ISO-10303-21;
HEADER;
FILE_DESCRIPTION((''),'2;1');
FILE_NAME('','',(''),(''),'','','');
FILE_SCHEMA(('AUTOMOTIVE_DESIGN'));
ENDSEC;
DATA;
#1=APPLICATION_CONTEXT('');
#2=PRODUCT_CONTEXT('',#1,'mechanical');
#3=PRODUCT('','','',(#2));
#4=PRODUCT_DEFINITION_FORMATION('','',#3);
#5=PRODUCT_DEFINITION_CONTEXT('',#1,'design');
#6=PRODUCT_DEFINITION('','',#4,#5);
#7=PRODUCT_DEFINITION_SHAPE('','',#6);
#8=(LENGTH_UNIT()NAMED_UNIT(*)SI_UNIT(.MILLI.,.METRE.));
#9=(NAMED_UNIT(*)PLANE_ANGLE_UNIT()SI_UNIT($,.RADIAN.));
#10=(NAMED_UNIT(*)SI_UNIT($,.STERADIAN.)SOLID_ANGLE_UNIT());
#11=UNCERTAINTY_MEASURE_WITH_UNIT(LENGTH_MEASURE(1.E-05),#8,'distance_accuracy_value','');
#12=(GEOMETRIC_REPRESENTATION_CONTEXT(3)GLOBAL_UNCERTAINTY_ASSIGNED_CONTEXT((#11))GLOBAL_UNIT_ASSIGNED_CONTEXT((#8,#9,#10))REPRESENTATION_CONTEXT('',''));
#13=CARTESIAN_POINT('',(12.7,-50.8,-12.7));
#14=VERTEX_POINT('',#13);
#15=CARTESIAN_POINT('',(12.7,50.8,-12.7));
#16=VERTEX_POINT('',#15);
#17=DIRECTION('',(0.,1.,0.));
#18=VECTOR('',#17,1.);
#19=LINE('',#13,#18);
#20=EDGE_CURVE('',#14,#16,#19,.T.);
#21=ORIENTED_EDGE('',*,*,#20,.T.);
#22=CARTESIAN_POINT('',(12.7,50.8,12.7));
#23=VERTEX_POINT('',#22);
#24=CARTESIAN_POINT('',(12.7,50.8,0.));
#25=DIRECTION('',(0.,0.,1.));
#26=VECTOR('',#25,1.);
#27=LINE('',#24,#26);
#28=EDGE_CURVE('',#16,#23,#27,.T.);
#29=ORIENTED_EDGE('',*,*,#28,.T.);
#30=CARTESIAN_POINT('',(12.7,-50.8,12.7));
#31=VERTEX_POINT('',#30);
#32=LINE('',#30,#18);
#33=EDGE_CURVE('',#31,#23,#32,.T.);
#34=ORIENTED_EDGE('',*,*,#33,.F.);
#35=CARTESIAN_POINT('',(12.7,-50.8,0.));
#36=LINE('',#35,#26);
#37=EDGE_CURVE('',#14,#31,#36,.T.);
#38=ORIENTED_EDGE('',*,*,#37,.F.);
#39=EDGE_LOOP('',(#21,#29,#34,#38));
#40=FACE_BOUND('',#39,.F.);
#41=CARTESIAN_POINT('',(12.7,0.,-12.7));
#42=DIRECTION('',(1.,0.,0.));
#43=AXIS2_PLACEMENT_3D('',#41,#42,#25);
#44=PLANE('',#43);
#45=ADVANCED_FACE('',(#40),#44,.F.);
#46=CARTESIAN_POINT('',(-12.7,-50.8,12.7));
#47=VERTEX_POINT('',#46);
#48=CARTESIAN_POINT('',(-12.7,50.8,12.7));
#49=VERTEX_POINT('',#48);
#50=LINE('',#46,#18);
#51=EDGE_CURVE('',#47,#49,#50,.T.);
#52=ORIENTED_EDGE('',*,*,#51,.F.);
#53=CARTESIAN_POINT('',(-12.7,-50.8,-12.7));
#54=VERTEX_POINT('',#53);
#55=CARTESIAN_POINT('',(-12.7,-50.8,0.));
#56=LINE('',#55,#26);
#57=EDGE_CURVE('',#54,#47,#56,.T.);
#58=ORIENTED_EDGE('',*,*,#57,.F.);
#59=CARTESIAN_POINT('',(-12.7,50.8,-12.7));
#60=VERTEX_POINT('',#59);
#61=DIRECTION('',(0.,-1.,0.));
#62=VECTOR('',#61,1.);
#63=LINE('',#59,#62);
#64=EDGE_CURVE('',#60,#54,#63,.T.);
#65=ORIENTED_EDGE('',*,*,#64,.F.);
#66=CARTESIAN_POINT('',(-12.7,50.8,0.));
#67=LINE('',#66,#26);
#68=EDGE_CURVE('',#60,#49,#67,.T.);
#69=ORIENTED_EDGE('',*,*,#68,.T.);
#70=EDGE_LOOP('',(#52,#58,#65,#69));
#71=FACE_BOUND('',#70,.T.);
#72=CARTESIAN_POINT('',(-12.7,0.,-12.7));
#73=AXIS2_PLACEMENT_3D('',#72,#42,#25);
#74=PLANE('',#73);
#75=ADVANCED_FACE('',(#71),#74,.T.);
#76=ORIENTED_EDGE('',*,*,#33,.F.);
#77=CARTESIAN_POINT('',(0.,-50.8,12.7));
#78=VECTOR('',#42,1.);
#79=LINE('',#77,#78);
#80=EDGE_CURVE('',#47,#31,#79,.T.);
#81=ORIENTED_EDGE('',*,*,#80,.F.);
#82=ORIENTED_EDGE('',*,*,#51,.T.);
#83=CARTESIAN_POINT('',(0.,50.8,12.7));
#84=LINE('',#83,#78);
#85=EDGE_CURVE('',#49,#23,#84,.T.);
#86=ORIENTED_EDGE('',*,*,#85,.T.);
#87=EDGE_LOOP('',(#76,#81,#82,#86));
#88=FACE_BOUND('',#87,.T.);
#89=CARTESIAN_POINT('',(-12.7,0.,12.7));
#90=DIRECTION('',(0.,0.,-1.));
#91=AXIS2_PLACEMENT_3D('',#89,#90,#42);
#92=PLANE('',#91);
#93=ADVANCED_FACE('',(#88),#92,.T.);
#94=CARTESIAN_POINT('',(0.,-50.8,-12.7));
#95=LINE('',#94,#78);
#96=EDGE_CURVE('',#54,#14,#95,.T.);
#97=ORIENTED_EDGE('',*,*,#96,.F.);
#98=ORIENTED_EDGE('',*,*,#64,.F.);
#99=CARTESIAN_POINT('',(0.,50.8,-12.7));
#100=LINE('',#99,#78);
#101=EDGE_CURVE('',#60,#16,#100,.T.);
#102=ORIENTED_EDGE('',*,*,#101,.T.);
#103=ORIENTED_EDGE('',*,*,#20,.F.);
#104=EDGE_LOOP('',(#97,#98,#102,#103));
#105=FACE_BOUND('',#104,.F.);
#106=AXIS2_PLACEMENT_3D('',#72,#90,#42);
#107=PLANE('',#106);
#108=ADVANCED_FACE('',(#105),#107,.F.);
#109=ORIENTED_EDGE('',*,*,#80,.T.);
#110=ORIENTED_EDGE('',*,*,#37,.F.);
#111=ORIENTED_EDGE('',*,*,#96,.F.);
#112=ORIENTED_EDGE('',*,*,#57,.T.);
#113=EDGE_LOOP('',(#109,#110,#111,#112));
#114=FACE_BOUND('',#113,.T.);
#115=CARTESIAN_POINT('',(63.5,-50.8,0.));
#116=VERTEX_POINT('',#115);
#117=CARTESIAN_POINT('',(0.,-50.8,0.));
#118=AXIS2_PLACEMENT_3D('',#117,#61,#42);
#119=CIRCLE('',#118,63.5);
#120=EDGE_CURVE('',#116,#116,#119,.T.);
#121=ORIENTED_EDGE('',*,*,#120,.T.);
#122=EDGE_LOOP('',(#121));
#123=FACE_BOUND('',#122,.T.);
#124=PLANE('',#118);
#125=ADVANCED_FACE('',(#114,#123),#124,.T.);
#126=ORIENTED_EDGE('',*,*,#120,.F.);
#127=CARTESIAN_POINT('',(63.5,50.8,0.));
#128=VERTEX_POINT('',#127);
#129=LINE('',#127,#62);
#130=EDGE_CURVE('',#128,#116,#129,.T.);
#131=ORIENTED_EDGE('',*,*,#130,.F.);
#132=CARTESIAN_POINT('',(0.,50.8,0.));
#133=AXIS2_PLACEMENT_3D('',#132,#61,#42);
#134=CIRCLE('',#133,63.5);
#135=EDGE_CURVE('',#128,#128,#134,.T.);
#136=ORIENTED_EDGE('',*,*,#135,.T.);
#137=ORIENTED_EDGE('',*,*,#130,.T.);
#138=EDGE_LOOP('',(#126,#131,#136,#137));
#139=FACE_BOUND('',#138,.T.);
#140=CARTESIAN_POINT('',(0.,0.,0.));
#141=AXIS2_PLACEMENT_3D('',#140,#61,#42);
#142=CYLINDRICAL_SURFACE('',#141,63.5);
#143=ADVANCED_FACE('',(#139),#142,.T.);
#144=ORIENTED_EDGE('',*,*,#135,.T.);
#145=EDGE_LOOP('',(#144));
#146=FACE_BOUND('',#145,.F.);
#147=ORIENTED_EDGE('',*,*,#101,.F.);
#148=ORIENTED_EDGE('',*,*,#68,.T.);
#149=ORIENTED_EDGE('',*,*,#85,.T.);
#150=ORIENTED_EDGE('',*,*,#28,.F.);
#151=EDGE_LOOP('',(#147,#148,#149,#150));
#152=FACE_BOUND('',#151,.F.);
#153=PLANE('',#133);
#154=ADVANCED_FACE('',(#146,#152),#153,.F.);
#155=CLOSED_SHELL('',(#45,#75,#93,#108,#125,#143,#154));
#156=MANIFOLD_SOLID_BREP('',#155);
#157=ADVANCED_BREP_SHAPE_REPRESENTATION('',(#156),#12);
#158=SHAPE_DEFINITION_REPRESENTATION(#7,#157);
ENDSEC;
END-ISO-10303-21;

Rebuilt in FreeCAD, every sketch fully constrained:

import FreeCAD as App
import Part
import Sketcher

V = App.Vector
Q = App.Units.Quantity


def add_polygon(sketch, points):
    """Adds a closed chain of lines whose ends are joined by coincident constraints."""
    first, n = sketch.GeometryCount, len(points)
    for a, b in zip(points, points[1:] + points[:1]):
        sketch.addGeometry(Part.LineSegment(App.Vector(*a, 0), App.Vector(*b, 0)), False)
    for i in range(n):
        sketch.addConstraint(Sketcher.Constraint("Coincident", first + i, 2, first + (i + 1) % n, 1))

doc = App.newDocument("Part")
params = doc.addObject("Spreadsheet::Sheet", "Params")
for row, (alias, value) in enumerate([
    ("sketch1_diameter", "5 in"),
    ("sketch1_width", "1 in"),
    ("pad1_length", "2 in"),
    ("sketch2_diameter", "5 in"),
    ("sketch2_width", "1 in"),
    ("pad2_length", "2 in"),
], start=1):
    params.set(f"A{row}", alias)
    params.set(f"B{row}", "=" + value)
    params.setAlias(f"B{row}", alias)

body = doc.addObject("PartDesign::Body", "Body")

sketch1 = doc.addObject("Sketcher::SketchObject", "Sketch")
body.addObject(sketch1)
sketch1.AttachmentSupport = (doc.XZ_Plane, [""])
sketch1.MapMode = "FlatFace"
sketch1.addGeometry(Part.Circle(V(0, 0, 0), V(0, 0, 1), 64), False)
add_polygon(sketch1, [(13, -13), (-13, -13), (-13, 13), (13, 13)])
sketch1.addConstraint(Sketcher.Constraint("Horizontal", 1))
sketch1.addConstraint(Sketcher.Constraint("Vertical", 2))
sketch1.addConstraint(Sketcher.Constraint("Horizontal", 3))
sketch1.addConstraint(Sketcher.Constraint("Vertical", 4))
sketch1.addConstraint(Sketcher.Constraint("Coincident", 0, 3, -1, 1))
sketch1.addConstraint(Sketcher.Constraint("Symmetric", 1, 2, 3, 2, -1, 1))
sketch1.addConstraint(Sketcher.Constraint("Equal", 3, 2))
sketch1.addConstraint(Sketcher.Constraint("Diameter", 0, Q("5 in")))
sketch1.addConstraint(Sketcher.Constraint("DistanceX", 1, 2, 1, 1, Q("1 in")))
sketch1.setExpression("Constraints[11]", "Params.sketch1_diameter")
sketch1.setExpression("Constraints[12]", "Params.sketch1_width")
pad1 = doc.addObject("PartDesign::Pad", "Pad")
body.addObject(pad1)
pad1.Profile = sketch1
pad1.setExpression("Length", "Params.pad1_length")

sketch2 = doc.addObject("Sketcher::SketchObject", "Sketch001")
body.addObject(sketch2)
sketch2.AttachmentSupport = (doc.XZ_Plane, [""])
sketch2.MapMode = "FlatFace"
sketch2.addGeometry(Part.Circle(V(0, 0, 0), V(0, 0, 1), 64), False)
add_polygon(sketch2, [(13, -13), (-13, -13), (-13, 13), (13, 13)])
sketch2.addConstraint(Sketcher.Constraint("Horizontal", 1))
sketch2.addConstraint(Sketcher.Constraint("Vertical", 2))
sketch2.addConstraint(Sketcher.Constraint("Horizontal", 3))
sketch2.addConstraint(Sketcher.Constraint("Vertical", 4))
sketch2.addConstraint(Sketcher.Constraint("Coincident", 0, 3, -1, 1))
sketch2.addConstraint(Sketcher.Constraint("Symmetric", 1, 2, 3, 2, -1, 1))
sketch2.addConstraint(Sketcher.Constraint("Equal", 3, 2))
sketch2.addConstraint(Sketcher.Constraint("Diameter", 0, Q("5 in")))
sketch2.addConstraint(Sketcher.Constraint("DistanceX", 1, 2, 1, 1, Q("1 in")))
sketch2.setExpression("Constraints[11]", "Params.sketch2_diameter")
sketch2.setExpression("Constraints[12]", "Params.sketch2_width")
pad2 = doc.addObject("PartDesign::Pad", "Pad001")
body.addObject(pad2)
pad2.Profile = sketch2
pad2.setExpression("Length", "Params.pad2_length")
pad2.Reversed = True

doc.recompute()
